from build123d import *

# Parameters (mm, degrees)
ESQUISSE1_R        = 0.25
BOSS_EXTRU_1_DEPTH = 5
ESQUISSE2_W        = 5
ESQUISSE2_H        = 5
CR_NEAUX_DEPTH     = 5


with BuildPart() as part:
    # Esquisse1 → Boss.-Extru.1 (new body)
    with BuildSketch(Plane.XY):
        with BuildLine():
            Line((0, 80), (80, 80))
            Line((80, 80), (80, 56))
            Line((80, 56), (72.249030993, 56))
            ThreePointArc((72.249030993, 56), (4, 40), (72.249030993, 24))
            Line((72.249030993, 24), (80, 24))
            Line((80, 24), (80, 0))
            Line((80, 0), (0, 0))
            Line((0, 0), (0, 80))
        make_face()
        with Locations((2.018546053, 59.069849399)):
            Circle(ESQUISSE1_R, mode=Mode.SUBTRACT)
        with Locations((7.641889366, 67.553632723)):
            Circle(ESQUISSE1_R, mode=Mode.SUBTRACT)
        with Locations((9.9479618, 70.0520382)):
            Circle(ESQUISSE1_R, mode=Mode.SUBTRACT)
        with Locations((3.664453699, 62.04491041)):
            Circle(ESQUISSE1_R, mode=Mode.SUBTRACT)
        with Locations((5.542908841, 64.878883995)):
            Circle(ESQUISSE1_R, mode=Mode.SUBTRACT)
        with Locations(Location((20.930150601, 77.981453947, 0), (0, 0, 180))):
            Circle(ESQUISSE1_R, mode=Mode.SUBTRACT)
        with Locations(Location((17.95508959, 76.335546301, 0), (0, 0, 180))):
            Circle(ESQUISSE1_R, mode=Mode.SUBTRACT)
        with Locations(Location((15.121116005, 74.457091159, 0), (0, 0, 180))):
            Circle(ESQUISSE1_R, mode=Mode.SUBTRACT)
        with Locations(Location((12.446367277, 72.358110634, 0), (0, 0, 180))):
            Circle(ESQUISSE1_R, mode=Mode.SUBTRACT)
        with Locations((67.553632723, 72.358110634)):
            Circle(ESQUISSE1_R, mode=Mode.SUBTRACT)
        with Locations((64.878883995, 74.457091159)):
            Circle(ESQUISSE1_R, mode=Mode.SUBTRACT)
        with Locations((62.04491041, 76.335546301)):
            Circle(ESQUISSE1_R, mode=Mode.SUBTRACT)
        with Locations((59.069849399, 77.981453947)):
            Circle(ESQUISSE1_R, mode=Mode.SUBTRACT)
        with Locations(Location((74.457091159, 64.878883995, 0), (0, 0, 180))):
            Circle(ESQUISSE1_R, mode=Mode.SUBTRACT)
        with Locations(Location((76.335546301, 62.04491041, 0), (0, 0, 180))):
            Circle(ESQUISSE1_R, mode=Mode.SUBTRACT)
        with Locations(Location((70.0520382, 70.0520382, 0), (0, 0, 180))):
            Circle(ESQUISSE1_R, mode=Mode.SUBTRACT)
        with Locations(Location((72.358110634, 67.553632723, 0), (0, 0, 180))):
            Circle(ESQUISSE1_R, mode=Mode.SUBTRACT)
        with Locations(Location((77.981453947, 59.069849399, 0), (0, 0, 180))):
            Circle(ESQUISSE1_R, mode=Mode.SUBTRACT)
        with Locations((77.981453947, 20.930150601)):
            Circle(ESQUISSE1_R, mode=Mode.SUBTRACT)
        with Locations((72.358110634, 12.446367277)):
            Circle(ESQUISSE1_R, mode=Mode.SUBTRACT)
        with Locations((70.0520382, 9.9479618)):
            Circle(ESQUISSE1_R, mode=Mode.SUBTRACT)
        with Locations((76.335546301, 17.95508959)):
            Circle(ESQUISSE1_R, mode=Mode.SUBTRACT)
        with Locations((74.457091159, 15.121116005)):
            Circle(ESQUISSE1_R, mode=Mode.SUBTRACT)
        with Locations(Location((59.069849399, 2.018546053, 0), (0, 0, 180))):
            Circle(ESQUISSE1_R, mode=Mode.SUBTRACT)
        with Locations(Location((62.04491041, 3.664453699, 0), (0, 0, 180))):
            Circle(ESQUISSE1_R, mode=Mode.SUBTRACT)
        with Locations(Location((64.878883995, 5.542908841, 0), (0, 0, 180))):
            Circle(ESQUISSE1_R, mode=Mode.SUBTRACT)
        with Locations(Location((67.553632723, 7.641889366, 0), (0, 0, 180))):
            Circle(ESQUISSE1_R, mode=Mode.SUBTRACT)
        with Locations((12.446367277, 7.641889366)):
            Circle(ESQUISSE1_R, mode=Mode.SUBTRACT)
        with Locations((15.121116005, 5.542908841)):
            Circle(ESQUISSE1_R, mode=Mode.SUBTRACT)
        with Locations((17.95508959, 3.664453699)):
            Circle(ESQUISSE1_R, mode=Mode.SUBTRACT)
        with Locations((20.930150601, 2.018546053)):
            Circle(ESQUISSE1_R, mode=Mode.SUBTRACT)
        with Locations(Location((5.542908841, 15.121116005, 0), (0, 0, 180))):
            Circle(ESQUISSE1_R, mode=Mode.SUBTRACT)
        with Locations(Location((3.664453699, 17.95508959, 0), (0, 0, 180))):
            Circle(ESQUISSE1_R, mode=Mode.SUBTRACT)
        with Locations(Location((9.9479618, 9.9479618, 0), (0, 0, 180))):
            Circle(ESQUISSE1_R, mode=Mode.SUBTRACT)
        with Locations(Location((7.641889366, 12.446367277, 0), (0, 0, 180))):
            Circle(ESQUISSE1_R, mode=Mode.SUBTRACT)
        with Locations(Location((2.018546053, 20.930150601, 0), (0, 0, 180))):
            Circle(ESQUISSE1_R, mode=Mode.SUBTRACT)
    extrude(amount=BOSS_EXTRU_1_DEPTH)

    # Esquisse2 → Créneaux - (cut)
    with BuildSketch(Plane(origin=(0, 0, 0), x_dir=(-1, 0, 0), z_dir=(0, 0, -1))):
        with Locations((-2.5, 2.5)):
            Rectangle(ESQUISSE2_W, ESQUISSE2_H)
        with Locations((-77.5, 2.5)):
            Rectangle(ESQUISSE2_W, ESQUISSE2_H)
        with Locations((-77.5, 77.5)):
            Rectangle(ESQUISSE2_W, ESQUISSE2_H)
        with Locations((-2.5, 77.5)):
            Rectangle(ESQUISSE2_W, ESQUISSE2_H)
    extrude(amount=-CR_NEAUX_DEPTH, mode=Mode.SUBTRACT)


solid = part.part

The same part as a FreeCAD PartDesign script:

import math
import FreeCAD as App
import Part
import Sketcher
from FreeCAD import Vector
Q = App.Units.Quantity

doc = App.newDocument("Part")
params = doc.addObject("Spreadsheet::Sheet", "Params")
for row, (alias, value) in enumerate([
    ("sketch1_radius", "36 mm"),
    ("sketch1_diameter", "0.5 mm"),
    ("sketch1_width", "80 mm"),
    ("sketch1_height", "24 mm"),
    ("pad1_length", "5 mm"),
    ("sketch2_width", "5 mm"),
    ("pocket1_length", "5 mm"),
], start=1):
    params.set(f"A{row}", alias)
    params.set(f"B{row}", "=" + value)
    params.setAlias(f"B{row}", alias)

body = doc.addObject("PartDesign::Body", "Body")

sketch1 = doc.addObject("Sketcher::SketchObject", "Sketch")
body.addObject(sketch1)
sketch1.AttachmentSupport = (doc.XY_Plane, [""])
sketch1.MapMode = "FlatFace"
sketch1.addGeometry([
    Part.LineSegment(Vector(80, 80, 0), Vector(0, 80, 0)),
    Part.LineSegment(Vector(0, 80, 0), Vector(0, 0, 0)),
    Part.LineSegment(Vector(0, 0, 0), Vector(80, 0, 0)),
    Part.LineSegment(Vector(80, 0, 0), Vector(80, 24, 0)),
    Part.LineSegment(Vector(80, 24, 0), Vector(72.249031, 24, 0)),
    Part.ArcOfCircle(Part.Circle(Vector(40, 40, 0), Vector(0, 0, 1), 36), math.radians(26.3878), math.radians(333.6122)),
    Part.LineSegment(Vector(72.249031, 56, 0), Vector(80, 56, 0)),
    Part.LineSegment(Vector(80, 56, 0), Vector(80, 80, 0)),
    Part.Circle(Vector(70.052038, 9.947962, 0), Vector(0, 0, 1), 0.25),
    Part.Circle(Vector(64.878884, 5.542909, 0), Vector(0, 0, 1), 0.25),
    Part.Circle(Vector(62.04491, 3.664454, 0), Vector(0, 0, 1), 0.25),
    Part.Circle(Vector(67.553633, 7.641889, 0), Vector(0, 0, 1), 0.25),
    Part.Circle(Vector(74.457091, 15.121116, 0), Vector(0, 0, 1), 0.25),
    Part.Circle(Vector(72.358111, 12.446367, 0), Vector(0, 0, 1), 0.25),
    Part.Circle(Vector(76.335546, 17.95509, 0), Vector(0, 0, 1), 0.25),
    Part.Circle(Vector(59.069849, 2.018546, 0), Vector(0, 0, 1), 0.25),
    Part.Circle(Vector(77.981454, 20.930151, 0), Vector(0, 0, 1), 0.25),
    Part.Circle(Vector(20.930151, 2.018546, 0), Vector(0, 0, 1), 0.25),
    Part.Circle(Vector(17.95509, 3.664454, 0), Vector(0, 0, 1), 0.25),
    Part.Circle(Vector(15.121116, 5.542909, 0), Vector(0, 0, 1), 0.25),
    Part.Circle(Vector(12.446367, 7.641889, 0), Vector(0, 0, 1), 0.25),
    Part.Circle(Vector(9.947962, 9.947962, 0), Vector(0, 0, 1), 0.25),
    Part.Circle(Vector(7.641889, 12.446367, 0), Vector(0, 0, 1), 0.25),
    Part.Circle(Vector(5.542909, 15.121116, 0), Vector(0, 0, 1), 0.25),
    Part.Circle(Vector(3.664454, 17.95509, 0), Vector(0, 0, 1), 0.25),
    Part.Circle(Vector(2.018546, 20.930151, 0), Vector(0, 0, 1), 0.25),
    Part.Circle(Vector(77.981454, 59.069849, 0), Vector(0, 0, 1), 0.25),
    Part.Circle(Vector(76.335546, 62.04491, 0), Vector(0, 0, 1), 0.25),
    Part.Circle(Vector(74.457091, 64.878884, 0), Vector(0, 0, 1), 0.25),
    Part.Circle(Vector(72.358111, 67.553633, 0), Vector(0, 0, 1), 0.25),
    Part.Circle(Vector(70.052038, 70.052038, 0), Vector(0, 0, 1), 0.25),
    Part.Circle(Vector(67.553633, 72.358111, 0), Vector(0, 0, 1), 0.25),
    Part.Circle(Vector(64.878884, 74.457091, 0), Vector(0, 0, 1), 0.25),
    Part.Circle(Vector(62.04491, 76.335546, 0), Vector(0, 0, 1), 0.25),
    Part.Circle(Vector(59.069849, 77.981454, 0), Vector(0, 0, 1), 0.25),
    Part.Circle(Vector(2.018546, 59.069849, 0), Vector(0, 0, 1), 0.25),
    Part.Circle(Vector(20.930151, 77.981454, 0), Vector(0, 0, 1), 0.25),
    Part.Circle(Vector(3.664454, 62.04491, 0), Vector(0, 0, 1), 0.25),
    Part.Circle(Vector(7.641889, 67.553633, 0), Vector(0, 0, 1), 0.25),
    Part.Circle(Vector(5.542909, 64.878884, 0), Vector(0, 0, 1), 0.25),
    Part.Circle(Vector(12.446367, 72.358111, 0), Vector(0, 0, 1), 0.25),
    Part.Circle(Vector(17.95509, 76.335546, 0), Vector(0, 0, 1), 0.25),
    Part.Circle(Vector(15.121116, 74.457091, 0), Vector(0, 0, 1), 0.25),
    Part.Circle(Vector(9.947962, 70.052038, 0), Vector(0, 0, 1), 0.25),
], False)
sketch1.addConstraint([
    Sketcher.Constraint("Coincident", 0, 2, 1, 1),
    Sketcher.Constraint("Coincident", 1, 2, 2, 1),
    Sketcher.Constraint("Coincident", 2, 2, 3, 1),
    Sketcher.Constraint("Coincident", 3, 2, 4, 1),
    Sketcher.Constraint("Coincident", 4, 2, 5, 2),
    Sketcher.Constraint("Coincident", 5, 1, 6, 1),
    Sketcher.Constraint("Coincident", 6, 2, 7, 1),
    Sketcher.Constraint("Coincident", 7, 2, 0, 1),
    Sketcher.Constraint("Horizontal", 0),
    Sketcher.Constraint("Vertical", 1),
    Sketcher.Constraint("Horizontal", 2),
    Sketcher.Constraint("Vertical", 3),
    Sketcher.Constraint("Horizontal", 4),
    Sketcher.Constraint("Horizontal", 6),
    Sketcher.Constraint("Vertical", 7),
    Sketcher.Constraint("Coincident", 1, 2, -1, 1),
    Sketcher.Constraint("Equal", 8, 9),
    Sketcher.Constraint("Equal", 9, 10),
    Sketcher.Constraint("Equal", 10, 11),
    Sketcher.Constraint("Equal", 11, 12),
    Sketcher.Constraint("Equal", 12, 13),
    Sketcher.Constraint("Equal", 13, 14),
    Sketcher.Constraint("Equal", 14, 15),
    Sketcher.Constraint("Equal", 15, 16),
    Sketcher.Constraint("Equal", 16, 17),
    Sketcher.Constraint("Equal", 17, 18),
    Sketcher.Constraint("Equal", 18, 19),
    Sketcher.Constraint("Equal", 19, 20),
    Sketcher.Constraint("Equal", 20, 21),
    Sketcher.Constraint("Equal", 21, 22),
    Sketcher.Constraint("Equal", 22, 23),
    Sketcher.Constraint("Equal", 23, 24),
    Sketcher.Constraint("Equal", 24, 25),
    Sketcher.Constraint("Equal", 25, 26),
    Sketcher.Constraint("Equal", 26, 27),
    Sketcher.Constraint("Equal", 27, 28),
    Sketcher.Constraint("Equal", 28, 29),
    Sketcher.Constraint("Equal", 29, 30),
    Sketcher.Constraint("Equal", 30, 31),
    Sketcher.Constraint("Equal", 31, 32),
    Sketcher.Constraint("Equal", 32, 33),
    Sketcher.Constraint("Equal", 33, 34),
    Sketcher.Constraint("Equal", 34, 35),
    Sketcher.Constraint("Equal", 35, 36),
    Sketcher.Constraint("Equal", 36, 37),
    Sketcher.Constraint("Equal", 37, 38),
    Sketcher.Constraint("Equal", 38, 39),
    Sketcher.Constraint("Equal", 39, 40),
    Sketcher.Constraint("Equal", 40, 41),
    Sketcher.Constraint("Equal", 41, 42),
    Sketcher.Constraint("Equal", 42, 43),
    Sketcher.Constraint("Horizontal", 15, 3, 17, 3),
    Sketcher.Constraint("Horizontal", 10, 3, 18, 3),
    Sketcher.Constraint("Horizontal", 9, 3, 19, 3),
    Sketcher.Constraint("Horizontal", 11, 3, 20, 3),
    Sketcher.Constraint("Horizontal", 8, 3, 21, 3),
    Sketcher.Constraint("Horizontal", 13, 3, 22, 3),
    Sketcher.Constraint("Horizontal", 12, 3, 23, 3),
    Sketcher.Constraint("Horizontal", 14, 3, 24, 3),
    Sketcher.Constraint("Horizontal", 16, 3, 25, 3),
    Sketcher.Constraint("Horizontal", 26, 3, 35, 3),
    Sketcher.Constraint("Horizontal", 34, 3, 36, 3),
    Sketcher.Constraint("Horizontal", 27, 3, 37, 3),
    Sketcher.Constraint("Horizontal", 29, 3, 38, 3),
    Sketcher.Constraint("Horizontal", 28, 3, 39, 3),
    Sketcher.Constraint("Horizontal", 31, 3, 40, 3),
    Sketcher.Constraint("Horizontal", 33, 3, 41, 3),
    Sketcher.Constraint("Horizontal", 32, 3, 42, 3),
    Sketcher.Constraint("Horizontal", 30, 3, 43, 3),
    Sketcher.Constraint("Vertical", 16, 3, 26, 3),
    Sketcher.Constraint("Vertical", 14, 3, 27, 3),
    Sketcher.Constraint("Vertical", 12, 3, 28, 3),
    Sketcher.Constraint("Vertical", 13, 3, 29, 3),
    Sketcher.Constraint("Vertical", 8, 3, 30, 3),
    Sketcher.Constraint("Vertical", 11, 3, 31, 3),
    Sketcher.Constraint("Vertical", 9, 3, 32, 3),
    Sketcher.Constraint("Vertical", 10, 3, 33, 3),
    Sketcher.Constraint("Vertical", 15, 3, 34, 3),
    Sketcher.Constraint("Vertical", 25, 3, 35, 3),
    Sketcher.Constraint("Vertical", 17, 3, 36, 3),
    Sketcher.Constraint("Vertical", 24, 3, 37, 3),
    Sketcher.Constraint("Vertical", 22, 3, 38, 3),
    Sketcher.Constraint("Vertical", 23, 3, 39, 3),
    Sketcher.Constraint("Vertical", 20, 3, 40, 3),
    Sketcher.Constraint("Vertical", 18, 3, 41, 3),
    Sketcher.Constraint("Vertical", 19, 3, 42, 3),
    Sketcher.Constraint("Vertical", 21, 3, 43, 3),
    Sketcher.Constraint("Vertical", 4, 2, 5, 1),
    Sketcher.Constraint("Vertical", 3, 2, 6, 2),
    Sketcher.Constraint("Equal", 2, 1),
    Sketcher.Constraint("Equal", 3, 7),
    Sketcher.Constraint("Radius", 5, Q("36 mm")),
    Sketcher.Constraint("Diameter", 8, Q("0.5 mm")),
    Sketcher.Constraint("DistanceX", 0, 2, 0, 1, Q("80 mm")),
    Sketcher.Constraint("DistanceY", 3, 1, 3, 2, Q("24 mm")),
    Sketcher.Constraint("DistanceX", -1, 1, 5, 3, Q("40 mm")),
    Sketcher.Constraint("DistanceX", 10, 3, 13, 3, Q("10.3132 mm")),
    Sketcher.Constraint("DistanceY", 11, 3, 14, 3, Q("10.3132 mm")),
    Sketcher.Constraint("DistanceX", 17, 3, 15, 3, Q("38.139699 mm")),
    Sketcher.Constraint("DistanceX", 22, 3, 18, 3, Q("10.3132 mm")),
    Sketcher.Constraint("DistanceY", 16, 3, 26, 3, Q("38.139699 mm")),
    Sketcher.Constraint("DistanceY", 27, 3, 31, 3, Q("10.3132 mm")),
    Sketcher.Constraint("DistanceX", -1, 1, 8, 3, Q("70.052038 mm")),
    Sketcher.Constraint("DistanceY", -1, 1, 8, 3, Q("9.947962 mm")),
    Sketcher.Constraint("DistanceY", -1, 1, 9, 3, Q("5.542909 mm")),
    Sketcher.Constraint("DistanceX", -1, 1, 10, 3, Q("62.04491 mm")),
    Sketcher.Constraint("DistanceY", -1, 1, 11, 3, Q("7.641889 mm")),
    Sketcher.Constraint("DistanceX", -1, 1, 12, 3, Q("74.457091 mm")),
    Sketcher.Constraint("DistanceX", -1, 1, 15, 3, Q("59.069849 mm")),
    Sketcher.Constraint("DistanceY", -1, 1, 16, 3, Q("20.930151 mm")),
    Sketcher.Constraint("DistanceX", -1, 1, 18, 3, Q("17.95509 mm")),
    Sketcher.Constraint("DistanceX", -1, 1, 21, 3, Q("9.947962 mm")),
    Sketcher.Constraint("DistanceX", -1, 1, 23, 3, Q("5.542909 mm")),
    Sketcher.Constraint("DistanceY", -1, 1, 27, 3, Q("62.04491 mm")),
    Sketcher.Constraint("DistanceY", -1, 1, 30, 3, Q("70.052038 mm")),
    Sketcher.Constraint("DistanceY", -1, 1, 32, 3, Q("74.457091 mm")),
    Sketcher.Constraint("DistanceY", 10, 3, 8, 3, Q("6.283508 mm")),
    Sketcher.Constraint("DistanceX", 9, 3, 11, 3, Q("2.674749 mm")),
    Sketcher.Constraint("DistanceX", 11, 3, 12, 3, Q("6.903458 mm")),
    Sketcher.Constraint("DistanceY", 13, 3, 12, 3, Q("2.674749 mm")),
    Sketcher.Constraint("DistanceY", 9, 3, 13, 3, Q("6.903458 mm")),
    Sketcher.Constraint("DistanceX", 8, 3, 14, 3, Q("6.283508 mm")),
    Sketcher.Constraint("DistanceY", 15, 3, 13, 3, Q("10.427821 mm")),
    Sketcher.Constraint("DistanceX", 11, 3, 16, 3, Q("10.427821 mm")),
    Sketcher.Constraint("DistanceX", 20, 3, 19, 3, Q("2.674749 mm")),
    Sketcher.Constraint("DistanceX", 23, 3, 20, 3, Q("6.903458 mm")),
    Sketcher.Constraint("DistanceX", 24, 3, 21, 3, Q("6.283508 mm")),
    Sketcher.Constraint("DistanceX", 25, 3, 20, 3, Q("10.427821 mm")),
    Sketcher.Constraint("DistanceY", 28, 3, 29, 3, Q("2.674749 mm")),
    Sketcher.Constraint("DistanceY", 29, 3, 32, 3, Q("6.903458 mm")),
    Sketcher.Constraint("DistanceY", 30, 3, 33, 3, Q("6.283508 mm")),
    Sketcher.Constraint("DistanceY", 29, 3, 34, 3, Q("10.427821 mm")),
])
sketch1.setExpression("Constraints[91]", "Params.sketch1_radius")
sketch1.setExpression("Constraints[92]", "Params.sketch1_diameter")
sketch1.setExpression("Constraints[93]", "Params.sketch1_width")
sketch1.setExpression("Constraints[94]", "Params.sketch1_height")
pad1 = doc.addObject("PartDesign::Pad", "Pad")
body.addObject(pad1)
pad1.Profile = sketch1
pad1.setExpression("Length", "Params.pad1_length")

sketch2 = doc.addObject("Sketcher::SketchObject", "Sketch001")
body.addObject(sketch2)
sketch2.AttachmentSupport = (doc.XY_Plane, [""])
sketch2.MapMode = "FlatFace"
sketch2.addGeometry([
    Part.LineSegment(Vector(5, 5, 0), Vector(5, 0, 0)),
    Part.LineSegment(Vector(5, 0, 0), Vector(0, 0, 0)),
    Part.LineSegment(Vector(0, 0, 0), Vector(0, 5, 0)),
    Part.LineSegment(Vector(0, 5, 0), Vector(5, 5, 0)),
    Part.LineSegment(Vector(80, 5, 0), Vector(80, 0, 0)),
    Part.LineSegment(Vector(80, 0, 0), Vector(75, 0, 0)),
    Part.LineSegment(Vector(75, 0, 0), Vector(75, 5, 0)),
    Part.LineSegment(Vector(75, 5, 0), Vector(80, 5, 0)),
    Part.LineSegment(Vector(80, 80, 0), Vector(80, 75, 0)),
    Part.LineSegment(Vector(80, 75, 0), Vector(75, 75, 0)),
    Part.LineSegment(Vector(75, 75, 0), Vector(75, 80, 0)),
    Part.LineSegment(Vector(75, 80, 0), Vector(80, 80, 0)),
    Part.LineSegment(Vector(5, 80, 0), Vector(5, 75, 0)),
    Part.LineSegment(Vector(5, 75, 0), Vector(0, 75, 0)),
    Part.LineSegment(Vector(0, 75, 0), Vector(0, 80, 0)),
    Part.LineSegment(Vector(0, 80, 0), Vector(5, 80, 0)),
], False)
sketch2.addConstraint([
    Sketcher.Constraint("Coincident", 0, 2, 1, 1),
    Sketcher.Constraint("Coincident", 1, 2, 2, 1),
    Sketcher.Constraint("Coincident", 2, 2, 3, 1),
    Sketcher.Constraint("Coincident", 3, 2, 0, 1),
    Sketcher.Constraint("Coincident", 4, 2, 5, 1),
    Sketcher.Constraint("Coincident", 5, 2, 6, 1),
    Sketcher.Constraint("Coincident", 6, 2, 7, 1),
    Sketcher.Constraint("Coincident", 7, 2, 4, 1),
    Sketcher.Constraint("Coincident", 8, 2, 9, 1),
    Sketcher.Constraint("Coincident", 9, 2, 10, 1),
    Sketcher.Constraint("Coincident", 10, 2, 11, 1),
    Sketcher.Constraint("Coincident", 11, 2, 8, 1),
    Sketcher.Constraint("Coincident", 12, 2, 13, 1),
    Sketcher.Constraint("Coincident", 13, 2, 14, 1),
    Sketcher.Constraint("Coincident", 14, 2, 15, 1),
    Sketcher.Constraint("Coincident", 15, 2, 12, 1),
    Sketcher.Constraint("Vertical", 0),
    Sketcher.Constraint("Horizontal", 1),
    Sketcher.Constraint("Vertical", 2),
    Sketcher.Constraint("Horizontal", 3),
    Sketcher.Constraint("Vertical", 4),
    Sketcher.Constraint("Horizontal", 5),
    Sketcher.Constraint("Vertical", 6),
    Sketcher.Constraint("Horizontal", 7),
    Sketcher.Constraint("Vertical", 8),
    Sketcher.Constraint("Horizontal", 9),
    Sketcher.Constraint("Vertical", 10),
    Sketcher.Constraint("Horizontal", 11),
    Sketcher.Constraint("Vertical", 12),
    Sketcher.Constraint("Horizontal", 13),
    Sketcher.Constraint("Vertical", 14),
    Sketcher.Constraint("Horizontal", 15),
    Sketcher.Constraint("Coincident", 1, 2, -1, 1),
    Sketcher.Constraint("PointOnObject", 4, 2, -1),
    Sketcher.Constraint("PointOnObject", 13, 2, -2),
    Sketcher.Constraint("Horizontal", 3, 2, 6, 2),
    Sketcher.Constraint("Horizontal", 9, 2, 12, 2),
    Sketcher.Constraint("Horizontal", 11, 2, 14, 2),
    Sketcher.Constraint("Vertical", 7, 2, 8, 2),
    Sketcher.Constraint("Vertical", 6, 2, 9, 2),
    Sketcher.Constraint("Vertical", 3, 2, 12, 2),
    Sketcher.Constraint("Equal", 3, 5),
    Sketcher.Constraint("Equal", 15, 0),
    Sketcher.Constraint("Equal", 6, 8),
    Sketcher.Constraint("DistanceX", 1, 2, 1, 1, Q("5 mm")),
    Sketcher.Constraint("DistanceX", -1, 1, 4, 2, Q("80 mm")),
    Sketcher.Constraint("DistanceY", -1, 1, 8, 2, Q("75 mm")),
])
sketch2.setExpression("Constraints[44]", "Params.sketch2_width")
pocket1 = doc.addObject("PartDesign::Pocket", "Pocket")
body.addObject(pocket1)
pocket1.Profile = sketch2
pocket1.setExpression("Length", "Params.pocket1_length")
pocket1.Reversed = True

doc.recompute()
